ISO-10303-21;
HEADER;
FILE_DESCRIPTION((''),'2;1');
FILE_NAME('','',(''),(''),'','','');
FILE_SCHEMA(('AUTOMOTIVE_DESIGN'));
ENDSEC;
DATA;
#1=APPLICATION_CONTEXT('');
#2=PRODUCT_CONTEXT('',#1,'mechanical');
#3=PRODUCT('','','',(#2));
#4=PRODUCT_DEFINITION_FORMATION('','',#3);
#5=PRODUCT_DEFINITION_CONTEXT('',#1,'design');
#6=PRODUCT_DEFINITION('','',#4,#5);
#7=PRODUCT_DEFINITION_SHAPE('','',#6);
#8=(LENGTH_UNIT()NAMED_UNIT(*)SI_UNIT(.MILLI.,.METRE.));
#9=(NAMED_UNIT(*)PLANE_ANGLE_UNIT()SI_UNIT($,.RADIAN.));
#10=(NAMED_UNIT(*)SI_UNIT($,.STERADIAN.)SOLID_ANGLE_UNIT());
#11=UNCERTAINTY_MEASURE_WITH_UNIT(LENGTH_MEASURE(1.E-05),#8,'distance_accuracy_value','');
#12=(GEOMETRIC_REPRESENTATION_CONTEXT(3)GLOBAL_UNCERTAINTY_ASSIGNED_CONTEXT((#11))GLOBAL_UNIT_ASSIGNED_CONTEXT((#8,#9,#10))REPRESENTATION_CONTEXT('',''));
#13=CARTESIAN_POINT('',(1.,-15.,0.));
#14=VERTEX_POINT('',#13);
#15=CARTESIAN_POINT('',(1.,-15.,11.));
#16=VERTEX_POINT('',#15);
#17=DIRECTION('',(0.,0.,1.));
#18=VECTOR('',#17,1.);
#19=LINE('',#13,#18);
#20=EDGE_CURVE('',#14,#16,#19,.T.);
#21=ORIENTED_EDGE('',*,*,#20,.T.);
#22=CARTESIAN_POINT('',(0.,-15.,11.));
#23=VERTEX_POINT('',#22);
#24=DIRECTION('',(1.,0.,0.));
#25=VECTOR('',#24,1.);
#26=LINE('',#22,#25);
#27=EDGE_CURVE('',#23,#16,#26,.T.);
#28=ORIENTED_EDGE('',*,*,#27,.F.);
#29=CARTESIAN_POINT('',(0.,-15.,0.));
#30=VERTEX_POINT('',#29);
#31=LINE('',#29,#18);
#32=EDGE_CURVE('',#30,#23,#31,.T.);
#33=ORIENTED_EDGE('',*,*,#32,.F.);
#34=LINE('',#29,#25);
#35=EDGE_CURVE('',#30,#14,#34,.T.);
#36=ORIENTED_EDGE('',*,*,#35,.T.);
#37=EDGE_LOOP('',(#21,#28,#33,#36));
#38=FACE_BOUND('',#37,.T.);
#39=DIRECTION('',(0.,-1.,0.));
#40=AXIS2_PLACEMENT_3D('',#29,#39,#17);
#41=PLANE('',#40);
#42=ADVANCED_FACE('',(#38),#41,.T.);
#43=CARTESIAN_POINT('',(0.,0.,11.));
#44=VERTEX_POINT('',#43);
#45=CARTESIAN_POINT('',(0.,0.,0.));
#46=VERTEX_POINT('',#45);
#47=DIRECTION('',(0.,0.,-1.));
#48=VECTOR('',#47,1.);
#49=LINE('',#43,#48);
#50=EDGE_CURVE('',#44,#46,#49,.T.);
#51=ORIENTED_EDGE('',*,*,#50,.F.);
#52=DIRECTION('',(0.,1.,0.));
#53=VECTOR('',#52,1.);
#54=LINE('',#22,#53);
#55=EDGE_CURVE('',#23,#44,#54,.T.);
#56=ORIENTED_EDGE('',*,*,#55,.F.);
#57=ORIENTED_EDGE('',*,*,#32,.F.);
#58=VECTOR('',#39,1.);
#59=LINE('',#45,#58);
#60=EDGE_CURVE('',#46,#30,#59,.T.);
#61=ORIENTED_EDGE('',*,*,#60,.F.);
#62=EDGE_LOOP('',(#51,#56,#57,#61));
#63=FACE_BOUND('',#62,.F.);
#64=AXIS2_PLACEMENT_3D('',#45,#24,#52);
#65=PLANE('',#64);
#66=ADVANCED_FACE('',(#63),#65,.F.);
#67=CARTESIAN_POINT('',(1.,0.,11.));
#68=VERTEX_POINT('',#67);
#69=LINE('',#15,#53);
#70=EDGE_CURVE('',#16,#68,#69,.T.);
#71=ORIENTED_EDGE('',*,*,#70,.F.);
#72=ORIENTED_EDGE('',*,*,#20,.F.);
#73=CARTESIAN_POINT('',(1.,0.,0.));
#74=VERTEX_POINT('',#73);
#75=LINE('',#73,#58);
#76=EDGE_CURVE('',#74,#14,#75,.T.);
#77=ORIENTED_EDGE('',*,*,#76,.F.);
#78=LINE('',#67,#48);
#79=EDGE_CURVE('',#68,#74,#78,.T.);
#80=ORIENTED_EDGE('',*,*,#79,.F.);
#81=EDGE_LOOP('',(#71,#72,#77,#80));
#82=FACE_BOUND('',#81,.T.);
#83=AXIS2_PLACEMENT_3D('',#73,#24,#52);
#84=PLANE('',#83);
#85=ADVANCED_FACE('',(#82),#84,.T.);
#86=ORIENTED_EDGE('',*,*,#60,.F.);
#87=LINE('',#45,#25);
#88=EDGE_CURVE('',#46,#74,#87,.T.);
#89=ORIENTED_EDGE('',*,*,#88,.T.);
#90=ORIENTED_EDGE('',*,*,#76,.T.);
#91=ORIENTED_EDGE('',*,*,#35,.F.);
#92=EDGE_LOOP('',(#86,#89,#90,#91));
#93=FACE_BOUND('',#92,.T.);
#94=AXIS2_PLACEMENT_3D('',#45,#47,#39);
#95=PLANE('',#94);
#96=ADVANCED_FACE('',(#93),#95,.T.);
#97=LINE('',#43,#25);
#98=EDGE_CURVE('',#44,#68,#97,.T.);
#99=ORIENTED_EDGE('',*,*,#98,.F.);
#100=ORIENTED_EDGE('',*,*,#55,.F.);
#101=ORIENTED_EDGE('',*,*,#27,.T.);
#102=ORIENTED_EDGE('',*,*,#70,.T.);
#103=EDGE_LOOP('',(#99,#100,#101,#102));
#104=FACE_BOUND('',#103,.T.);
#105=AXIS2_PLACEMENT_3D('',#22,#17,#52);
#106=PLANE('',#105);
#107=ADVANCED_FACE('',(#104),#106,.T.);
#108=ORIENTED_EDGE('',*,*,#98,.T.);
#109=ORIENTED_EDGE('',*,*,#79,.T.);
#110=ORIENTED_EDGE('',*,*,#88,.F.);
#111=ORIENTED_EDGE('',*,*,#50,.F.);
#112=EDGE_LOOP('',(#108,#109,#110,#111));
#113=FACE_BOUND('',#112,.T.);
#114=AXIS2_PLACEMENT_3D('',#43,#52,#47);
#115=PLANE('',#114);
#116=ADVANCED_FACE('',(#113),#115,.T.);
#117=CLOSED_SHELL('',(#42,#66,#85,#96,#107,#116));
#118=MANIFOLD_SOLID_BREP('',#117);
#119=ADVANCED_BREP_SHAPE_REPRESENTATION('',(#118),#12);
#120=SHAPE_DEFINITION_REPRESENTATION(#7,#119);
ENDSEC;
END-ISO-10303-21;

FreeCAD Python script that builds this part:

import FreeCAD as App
import Part
import Sketcher

V = App.Vector
Q = App.Units.Quantity


def add_polygon(sketch, points):
    """Adds a closed chain of lines whose ends are joined by coincident constraints."""
    first, n = sketch.GeometryCount, len(points)
    for a, b in zip(points, points[1:] + points[:1]):
        sketch.addGeometry(Part.LineSegment(App.Vector(*a, 0), App.Vector(*b, 0)), False)
    for i in range(n):
        sketch.addConstraint(Sketcher.Constraint("Coincident", first + i, 2, first + (i + 1) % n, 1))

doc = App.newDocument("Part")
body = doc.addObject("PartDesign::Body", "Body")

sketch1 = body.newObject("Sketcher::SketchObject", "Sketch")
sketch1.AttachmentSupport = (doc.getObject("YZ_Plane"), [""])
sketch1.MapMode = "FlatFace"
add_polygon(sketch1, [(-15, 0), (0, 0), (0, 11), (-15, 11)])
sketch1.addConstraint([
    Sketcher.Constraint("Horizontal", 0),
    Sketcher.Constraint("Vertical", 1),
    Sketcher.Constraint("Horizontal", 2),
    Sketcher.Constraint("Vertical", 3),
    Sketcher.Constraint("Coincident", 0, 2, -1, 1),
    Sketcher.Constraint("DistanceX", 0, 1, 0, 2, Q("15 mm")),
    Sketcher.Constraint("DistanceY", 1, 1, 1, 2, Q("11 mm")),
])
pad1 = body.newObject("PartDesign::Pad", "Pad")
pad1.Profile = sketch1
pad1.Length = 1

doc.recompute()
